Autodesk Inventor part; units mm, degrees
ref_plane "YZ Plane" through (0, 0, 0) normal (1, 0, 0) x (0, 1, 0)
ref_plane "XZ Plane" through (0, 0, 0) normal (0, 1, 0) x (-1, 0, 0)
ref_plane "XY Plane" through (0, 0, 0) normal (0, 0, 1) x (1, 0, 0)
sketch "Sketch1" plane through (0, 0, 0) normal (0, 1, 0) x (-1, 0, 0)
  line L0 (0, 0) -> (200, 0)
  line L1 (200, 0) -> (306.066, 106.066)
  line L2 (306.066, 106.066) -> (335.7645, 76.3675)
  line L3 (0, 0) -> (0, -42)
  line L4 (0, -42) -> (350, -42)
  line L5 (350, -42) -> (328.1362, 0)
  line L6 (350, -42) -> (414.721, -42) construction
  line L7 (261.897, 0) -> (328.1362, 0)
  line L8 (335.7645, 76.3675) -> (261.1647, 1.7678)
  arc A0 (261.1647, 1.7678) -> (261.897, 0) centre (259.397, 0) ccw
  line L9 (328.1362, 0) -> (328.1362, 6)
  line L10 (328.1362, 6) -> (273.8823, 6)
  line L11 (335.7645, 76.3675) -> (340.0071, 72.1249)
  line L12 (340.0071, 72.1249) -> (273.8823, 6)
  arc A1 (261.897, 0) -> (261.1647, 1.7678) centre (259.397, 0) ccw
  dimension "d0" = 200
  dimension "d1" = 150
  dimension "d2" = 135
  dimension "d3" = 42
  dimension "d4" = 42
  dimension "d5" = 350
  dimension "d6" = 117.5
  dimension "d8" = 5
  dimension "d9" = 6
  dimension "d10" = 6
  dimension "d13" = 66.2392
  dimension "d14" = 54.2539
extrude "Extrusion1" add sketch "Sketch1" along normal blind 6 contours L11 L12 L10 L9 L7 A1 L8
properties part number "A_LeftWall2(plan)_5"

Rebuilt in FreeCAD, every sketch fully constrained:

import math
import FreeCAD as App
import Part
import Sketcher

V = App.Vector
Q = App.Units.Quantity

doc = App.newDocument("Part")
params = doc.addObject("Spreadsheet::Sheet", "Params")
for row, (alias, value) in enumerate([
    ("sketch1_radius", "2.5 mm"),
    ("sketch1_height", "6 mm"),
    ("sketch1_length", "6 mm"),
    ("sketch1_length2", "105.5 mm"),
    ("pad1_length", "6 mm"),
], start=1):
    params.set(f"A{row}", alias)
    params.set(f"B{row}", "=" + value)
    params.setAlias(f"B{row}", alias)

body = doc.addObject("PartDesign::Body", "Body")

sketch1 = body.newObject("Sketcher::SketchObject", "Sketch")
sketch1.AttachmentSupport = (doc.getObject("XZ_Plane"), [""])
sketch1.MapMode = "FlatFace"
sketch1.addGeometry([
    Part.LineSegment(V(-340, 72.1, 0), V(-335.8, 76.4, 0)),
    Part.LineSegment(V(-335.8, 76.4, 0), V(-261.2, 1.8, 0)),
    Part.ArcOfCircle(Part.Circle(V(-259.4, 0, 0), V(0, 0, 1), 2.5), math.radians(135), math.radians(180)),
    Part.LineSegment(V(-261.9, 0, 0), V(-328.1, 0, 0)),
    Part.LineSegment(V(-328.1, 0, 0), V(-328.1, 6, 0)),
    Part.LineSegment(V(-328.1, 6, 0), V(-273.9, 6, 0)),
    Part.LineSegment(V(-273.9, 6, 0), V(-340, 72.1, 0)),
], False)
sketch1.addConstraint([
    Sketcher.Constraint("Coincident", 0, 2, 1, 1),
    Sketcher.Constraint("Coincident", 1, 2, 2, 1),
    Sketcher.Constraint("Coincident", 2, 2, 3, 1),
    Sketcher.Constraint("Coincident", 3, 2, 4, 1),
    Sketcher.Constraint("Coincident", 4, 2, 5, 1),
    Sketcher.Constraint("Coincident", 5, 2, 6, 1),
    Sketcher.Constraint("Coincident", 6, 2, 0, 1),
    Sketcher.Constraint("Horizontal", 3),
    Sketcher.Constraint("Vertical", 4),
    Sketcher.Constraint("Horizontal", 5),
    Sketcher.Constraint("PointOnObject", 2, 3, -1),
    Sketcher.Constraint("PointOnObject", 2, 2, -1),
    Sketcher.Constraint("Perpendicular", 0, 1),
    Sketcher.Constraint("Parallel", 1, 6),
    Sketcher.Constraint("Radius", 2, Q("2.5 mm")),
    Sketcher.Constraint("DistanceY", 4, 1, 4, 2, Q("6 mm")),
    Sketcher.Constraint("Angle", 6, Q("135 deg")),
    Sketcher.Constraint("Distance", 0, Q("6 mm")),
    Sketcher.Constraint("DistanceX", 5, 1, 5, 2, Q("54.254 mm")),
    Sketcher.Constraint("DistanceX", 3, 2, 3, 1, Q("66.2392 mm")),
    Sketcher.Constraint("Distance", 1, Q("105.5 mm")),
    Sketcher.Constraint("DistanceX", 2, 3, -1, 1, Q("259.397 mm")),
])
sketch1.setExpression("Constraints[14]", "Params.sketch1_radius")
sketch1.setExpression("Constraints[15]", "Params.sketch1_height")
sketch1.setExpression("Constraints[17]", "Params.sketch1_length")
sketch1.setExpression("Constraints[20]", "Params.sketch1_length2")
pad1 = body.newObject("PartDesign::Pad", "Pad")
pad1.Profile = sketch1
pad1.setExpression("Length", "Params.pad1_length")
pad1.Reversed = True

doc.recompute()
